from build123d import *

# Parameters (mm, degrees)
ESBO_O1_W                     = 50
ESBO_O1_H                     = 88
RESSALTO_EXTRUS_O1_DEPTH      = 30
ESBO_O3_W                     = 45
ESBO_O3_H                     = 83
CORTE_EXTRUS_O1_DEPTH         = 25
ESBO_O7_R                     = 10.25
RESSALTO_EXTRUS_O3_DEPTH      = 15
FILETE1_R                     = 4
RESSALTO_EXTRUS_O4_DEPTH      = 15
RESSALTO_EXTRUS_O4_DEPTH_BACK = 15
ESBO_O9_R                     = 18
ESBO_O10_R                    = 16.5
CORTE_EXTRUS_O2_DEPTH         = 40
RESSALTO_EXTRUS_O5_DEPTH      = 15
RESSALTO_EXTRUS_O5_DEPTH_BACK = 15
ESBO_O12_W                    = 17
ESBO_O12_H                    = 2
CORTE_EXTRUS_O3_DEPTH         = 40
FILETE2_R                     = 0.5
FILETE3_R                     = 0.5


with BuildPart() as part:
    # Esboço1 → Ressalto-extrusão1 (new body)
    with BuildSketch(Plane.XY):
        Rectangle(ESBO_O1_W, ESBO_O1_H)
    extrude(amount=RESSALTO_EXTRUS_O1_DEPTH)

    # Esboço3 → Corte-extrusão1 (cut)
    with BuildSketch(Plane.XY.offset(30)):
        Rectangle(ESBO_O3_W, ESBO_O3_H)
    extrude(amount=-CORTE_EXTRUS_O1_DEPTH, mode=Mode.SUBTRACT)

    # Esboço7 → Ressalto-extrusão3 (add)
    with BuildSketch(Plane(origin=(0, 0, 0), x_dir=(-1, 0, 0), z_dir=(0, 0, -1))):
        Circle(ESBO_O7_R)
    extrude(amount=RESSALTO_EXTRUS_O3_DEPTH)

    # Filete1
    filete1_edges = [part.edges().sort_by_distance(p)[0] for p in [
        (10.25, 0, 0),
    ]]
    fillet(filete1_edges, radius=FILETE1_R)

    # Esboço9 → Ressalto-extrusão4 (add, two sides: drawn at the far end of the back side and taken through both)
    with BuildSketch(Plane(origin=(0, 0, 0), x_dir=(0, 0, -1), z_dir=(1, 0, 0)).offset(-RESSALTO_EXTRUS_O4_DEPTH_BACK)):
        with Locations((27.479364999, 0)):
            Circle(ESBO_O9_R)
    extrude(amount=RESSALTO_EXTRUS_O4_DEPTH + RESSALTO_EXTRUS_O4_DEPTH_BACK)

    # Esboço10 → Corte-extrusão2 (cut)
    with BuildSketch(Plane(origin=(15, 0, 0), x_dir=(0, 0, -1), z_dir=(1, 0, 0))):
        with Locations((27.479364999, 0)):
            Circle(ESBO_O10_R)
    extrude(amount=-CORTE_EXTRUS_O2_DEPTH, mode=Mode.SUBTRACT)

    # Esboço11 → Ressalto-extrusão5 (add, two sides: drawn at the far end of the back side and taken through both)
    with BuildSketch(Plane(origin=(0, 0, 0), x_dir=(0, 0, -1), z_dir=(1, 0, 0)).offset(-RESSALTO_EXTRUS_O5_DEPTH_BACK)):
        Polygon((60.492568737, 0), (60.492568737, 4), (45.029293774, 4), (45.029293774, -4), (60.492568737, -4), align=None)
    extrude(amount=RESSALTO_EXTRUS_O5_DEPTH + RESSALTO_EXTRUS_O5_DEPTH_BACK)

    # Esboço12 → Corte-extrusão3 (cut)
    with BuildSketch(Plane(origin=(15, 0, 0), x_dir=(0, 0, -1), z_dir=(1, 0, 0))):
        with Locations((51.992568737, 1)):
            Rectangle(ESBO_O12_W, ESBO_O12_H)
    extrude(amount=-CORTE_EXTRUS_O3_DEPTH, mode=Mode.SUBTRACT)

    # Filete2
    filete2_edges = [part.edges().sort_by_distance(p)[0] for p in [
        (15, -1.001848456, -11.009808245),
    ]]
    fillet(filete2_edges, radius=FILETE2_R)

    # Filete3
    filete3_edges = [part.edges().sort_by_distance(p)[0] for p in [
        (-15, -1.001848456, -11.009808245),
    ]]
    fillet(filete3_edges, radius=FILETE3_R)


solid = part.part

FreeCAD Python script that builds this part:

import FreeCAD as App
import Part
import Sketcher
from FreeCAD import Vector
Q = App.Units.Quantity


def edges_at(feature, points):
    """Names of the edges that pass closest to the given points."""
    edges = feature.Shape.Edges
    near = lambda p: min(range(len(edges)), key=lambda i: edges[i].distToShape(Part.Vertex(*p))[0])
    return sorted({f"Edge{near(p) + 1}" for p in points})


def add_polygon(sketch, points):
    """Adds a closed chain of lines whose ends are joined by coincident constraints."""
    first, n = sketch.GeometryCount, len(points)
    for a, b in zip(points, points[1:] + points[:1]):
        sketch.addGeometry(Part.LineSegment(App.Vector(*a, 0), App.Vector(*b, 0)), False)
    for i in range(n):
        sketch.addConstraint(Sketcher.Constraint("Coincident", first + i, 2, first + (i + 1) % n, 1))

doc = App.newDocument("Part")
body = doc.addObject("PartDesign::Body", "Body")

# Sketch on XY plane
sketch1 = body.newObject("Sketcher::SketchObject", "Sketch")
sketch1.AttachmentSupport = (doc.getObject("XY_Plane"), [""])
sketch1.MapMode = "FlatFace"
add_polygon(sketch1, [(-25, 44), (-25, -44), (25, -44), (25, 44)])  # lines 0-3
sketch1.addConstraint(Sketcher.Constraint("Vertical", 0))
sketch1.addConstraint(Sketcher.Constraint("Horizontal", 1))
sketch1.addConstraint(Sketcher.Constraint("Vertical", 2))
sketch1.addConstraint(Sketcher.Constraint("Horizontal", 3))
sketch1.addConstraint(Sketcher.Constraint("Symmetric", 0, 2, 2, 2, -1, 1))
sketch1.addConstraint(Sketcher.Constraint("DistanceX", 1, 1, 1, 2, Q("50 mm")))
sketch1.addConstraint(Sketcher.Constraint("DistanceY", 0, 2, 0, 1, Q("88 mm")))
pad1 = body.newObject("PartDesign::Pad", "Pad")
pad1.Profile = sketch1
pad1.Length = 30

# Sketch on XY plane
sketch2 = body.newObject("Sketcher::SketchObject", "Sketch001")
sketch2.AttachmentSupport = (doc.getObject("XY_Plane"), [""])
sketch2.MapMode = "FlatFace"
sketch2.AttachmentOffset = App.Placement(Vector(0, 0, 30), App.Rotation())
add_polygon(sketch2, [(-22, 42), (-22, -42), (22, -42), (22, 42)])  # lines 0-3
sketch2.addConstraint(Sketcher.Constraint("Vertical", 0))
sketch2.addConstraint(Sketcher.Constraint("Horizontal", 1))
sketch2.addConstraint(Sketcher.Constraint("Vertical", 2))
sketch2.addConstraint(Sketcher.Constraint("Horizontal", 3))
sketch2.addConstraint(Sketcher.Constraint("Symmetric", 0, 2, 2, 2, -1, 1))
sketch2.addConstraint(Sketcher.Constraint("DistanceX", 1, 1, 1, 2, Q("45 mm")))
sketch2.addConstraint(Sketcher.Constraint("DistanceY", 0, 2, 0, 1, Q("83 mm")))
pocket1 = body.newObject("PartDesign::Pocket", "Pocket")
pocket1.Profile = sketch2
pocket1.Length = 25

# Sketch on XY plane
sketch3 = body.newObject("Sketcher::SketchObject", "Sketch002")
sketch3.AttachmentSupport = (doc.getObject("XY_Plane"), [""])
sketch3.MapMode = "FlatFace"
sketch3.addGeometry(Part.Circle(Vector(0, 0, 0), Vector(0, 0, 1), 10), False)
sketch3.addConstraint(Sketcher.Constraint("Coincident", 0, 3, -1, 1))
sketch3.addConstraint(Sketcher.Constraint("Diameter", 0, Q("20.5 mm")))
pad2 = body.newObject("PartDesign::Pad", "Pad001")
pad2.Profile = sketch3
pad2.Length = 15
pad2.Reversed = True
doc.recompute()

fillet = body.newObject("PartDesign::Fillet", "Fillet")
fillet.Base = (pad2, edges_at(pad2, [(10.25, 0, 0)]))
fillet.Radius = 4

# Sketch on YZ plane
sketch4 = body.newObject("Sketcher::SketchObject", "Sketch003")
sketch4.AttachmentSupport = (doc.getObject("YZ_Plane"), [""])
sketch4.MapMode = "FlatFace"
sketch4.addGeometry(Part.Circle(Vector(0, -27, 0), Vector(0, 0, 1), 18), False)
sketch4.addConstraint(Sketcher.Constraint("PointOnObject", 0, 3, -2))
sketch4.addConstraint(Sketcher.Constraint("Diameter", 0, Q("36 mm")))
sketch4.addConstraint(Sketcher.Constraint("DistanceY", 0, 3, -1, 1, Q("27.479365 mm")))
pad3 = body.newObject("PartDesign::Pad", "Pad002")
pad3.Profile = sketch4
pad3.Type = "TwoLengths"
pad3.Length = 15
pad3.Length2 = 15

# Sketch on YZ plane
sketch5 = body.newObject("Sketcher::SketchObject", "Sketch004")
sketch5.AttachmentSupport = (doc.getObject("YZ_Plane"), [""])
sketch5.MapMode = "FlatFace"
sketch5.AttachmentOffset = App.Placement(Vector(0, 0, 15), App.Rotation())
sketch5.addGeometry(Part.Circle(Vector(0, -27, 0), Vector(0, 0, 1), 16), False)
sketch5.addConstraint(Sketcher.Constraint("PointOnObject", 0, 3, -2))
sketch5.addConstraint(Sketcher.Constraint("Diameter", 0, Q("33 mm")))
sketch5.addConstraint(Sketcher.Constraint("DistanceY", 0, 3, -1, 1, Q("27.479365 mm")))
pocket2 = body.newObject("PartDesign::Pocket", "Pocket001")
pocket2.Profile = sketch5
pocket2.Length = 40

# Sketch on YZ plane
sketch6 = body.newObject("Sketcher::SketchObject", "Sketch005")
sketch6.AttachmentSupport = (doc.getObject("YZ_Plane"), [""])
sketch6.MapMode = "FlatFace"
add_polygon(sketch6, [(4, -60), (4, -45), (-4, -45), (-4, -60)])  # lines 0-3
sketch6.addConstraint(Sketcher.Constraint("Vertical", 0))
sketch6.addConstraint(Sketcher.Constraint("Horizontal", 1))
sketch6.addConstraint(Sketcher.Constraint("Vertical", 2))
sketch6.addConstraint(Sketcher.Constraint("Horizontal", 3))
sketch6.addConstraint(Sketcher.Constraint("DistanceX", 1, 2, 1, 1, Q("8 mm")))
sketch6.addConstraint(Sketcher.Constraint("DistanceX", -1, 1, 0, 2, Q("4 mm")))
sketch6.addConstraint(Sketcher.Constraint("DistanceY", 0, 1, 0, 2, Q("15.463275 mm")))
sketch6.addConstraint(Sketcher.Constraint("DistanceY", 2, 2, -1, 1, Q("60.492569 mm")))
pad4 = body.newObject("PartDesign::Pad", "Pad003")
pad4.Profile = sketch6
pad4.Type = "TwoLengths"
pad4.Length = 15
pad4.Length2 = 15

# Sketch on YZ plane
sketch7 = body.newObject("Sketcher::SketchObject", "Sketch006")
sketch7.AttachmentSupport = (doc.getObject("YZ_Plane"), [""])
sketch7.MapMode = "FlatFace"
sketch7.AttachmentOffset = App.Placement(Vector(0, 0, 15), App.Rotation())
add_polygon(sketch7, [(2, -43.5), (0, -43.5), (0, -60.5), (2, -60.5)])  # lines 0-3
sketch7.addConstraint(Sketcher.Constraint("Horizontal", 0))
sketch7.addConstraint(Sketcher.Constraint("Vertical", 1))
sketch7.addConstraint(Sketcher.Constraint("Horizontal", 2))
sketch7.addConstraint(Sketcher.Constraint("Vertical", 3))
sketch7.addConstraint(Sketcher.Constraint("PointOnObject", 0, 2, -2))
sketch7.addConstraint(Sketcher.Constraint("DistanceX", 0, 2, 0, 1, Q("2 mm")))
sketch7.addConstraint(Sketcher.Constraint("DistanceY", 1, 2, 1, 1, Q("17 mm")))
sketch7.addConstraint(Sketcher.Constraint("DistanceY", 0, 2, -1, 1, Q("43.492569 mm")))
pocket3 = body.newObject("PartDesign::Pocket", "Pocket002")
pocket3.Profile = sketch7
pocket3.Length = 40
doc.recompute()

fillet2 = body.newObject("PartDesign::Fillet", "Fillet001")
fillet2.Base = (pocket3, edges_at(pocket3, [(15, -1.002, -11.01)]))
fillet2.Radius = 0.5
doc.recompute()

fillet3 = body.newObject("PartDesign::Fillet", "Fillet002")
fillet3.Base = (fillet2, edges_at(fillet2, [(-15, -1.002, -11.01)]))
fillet3.Radius = 0.5

doc.recompute()
